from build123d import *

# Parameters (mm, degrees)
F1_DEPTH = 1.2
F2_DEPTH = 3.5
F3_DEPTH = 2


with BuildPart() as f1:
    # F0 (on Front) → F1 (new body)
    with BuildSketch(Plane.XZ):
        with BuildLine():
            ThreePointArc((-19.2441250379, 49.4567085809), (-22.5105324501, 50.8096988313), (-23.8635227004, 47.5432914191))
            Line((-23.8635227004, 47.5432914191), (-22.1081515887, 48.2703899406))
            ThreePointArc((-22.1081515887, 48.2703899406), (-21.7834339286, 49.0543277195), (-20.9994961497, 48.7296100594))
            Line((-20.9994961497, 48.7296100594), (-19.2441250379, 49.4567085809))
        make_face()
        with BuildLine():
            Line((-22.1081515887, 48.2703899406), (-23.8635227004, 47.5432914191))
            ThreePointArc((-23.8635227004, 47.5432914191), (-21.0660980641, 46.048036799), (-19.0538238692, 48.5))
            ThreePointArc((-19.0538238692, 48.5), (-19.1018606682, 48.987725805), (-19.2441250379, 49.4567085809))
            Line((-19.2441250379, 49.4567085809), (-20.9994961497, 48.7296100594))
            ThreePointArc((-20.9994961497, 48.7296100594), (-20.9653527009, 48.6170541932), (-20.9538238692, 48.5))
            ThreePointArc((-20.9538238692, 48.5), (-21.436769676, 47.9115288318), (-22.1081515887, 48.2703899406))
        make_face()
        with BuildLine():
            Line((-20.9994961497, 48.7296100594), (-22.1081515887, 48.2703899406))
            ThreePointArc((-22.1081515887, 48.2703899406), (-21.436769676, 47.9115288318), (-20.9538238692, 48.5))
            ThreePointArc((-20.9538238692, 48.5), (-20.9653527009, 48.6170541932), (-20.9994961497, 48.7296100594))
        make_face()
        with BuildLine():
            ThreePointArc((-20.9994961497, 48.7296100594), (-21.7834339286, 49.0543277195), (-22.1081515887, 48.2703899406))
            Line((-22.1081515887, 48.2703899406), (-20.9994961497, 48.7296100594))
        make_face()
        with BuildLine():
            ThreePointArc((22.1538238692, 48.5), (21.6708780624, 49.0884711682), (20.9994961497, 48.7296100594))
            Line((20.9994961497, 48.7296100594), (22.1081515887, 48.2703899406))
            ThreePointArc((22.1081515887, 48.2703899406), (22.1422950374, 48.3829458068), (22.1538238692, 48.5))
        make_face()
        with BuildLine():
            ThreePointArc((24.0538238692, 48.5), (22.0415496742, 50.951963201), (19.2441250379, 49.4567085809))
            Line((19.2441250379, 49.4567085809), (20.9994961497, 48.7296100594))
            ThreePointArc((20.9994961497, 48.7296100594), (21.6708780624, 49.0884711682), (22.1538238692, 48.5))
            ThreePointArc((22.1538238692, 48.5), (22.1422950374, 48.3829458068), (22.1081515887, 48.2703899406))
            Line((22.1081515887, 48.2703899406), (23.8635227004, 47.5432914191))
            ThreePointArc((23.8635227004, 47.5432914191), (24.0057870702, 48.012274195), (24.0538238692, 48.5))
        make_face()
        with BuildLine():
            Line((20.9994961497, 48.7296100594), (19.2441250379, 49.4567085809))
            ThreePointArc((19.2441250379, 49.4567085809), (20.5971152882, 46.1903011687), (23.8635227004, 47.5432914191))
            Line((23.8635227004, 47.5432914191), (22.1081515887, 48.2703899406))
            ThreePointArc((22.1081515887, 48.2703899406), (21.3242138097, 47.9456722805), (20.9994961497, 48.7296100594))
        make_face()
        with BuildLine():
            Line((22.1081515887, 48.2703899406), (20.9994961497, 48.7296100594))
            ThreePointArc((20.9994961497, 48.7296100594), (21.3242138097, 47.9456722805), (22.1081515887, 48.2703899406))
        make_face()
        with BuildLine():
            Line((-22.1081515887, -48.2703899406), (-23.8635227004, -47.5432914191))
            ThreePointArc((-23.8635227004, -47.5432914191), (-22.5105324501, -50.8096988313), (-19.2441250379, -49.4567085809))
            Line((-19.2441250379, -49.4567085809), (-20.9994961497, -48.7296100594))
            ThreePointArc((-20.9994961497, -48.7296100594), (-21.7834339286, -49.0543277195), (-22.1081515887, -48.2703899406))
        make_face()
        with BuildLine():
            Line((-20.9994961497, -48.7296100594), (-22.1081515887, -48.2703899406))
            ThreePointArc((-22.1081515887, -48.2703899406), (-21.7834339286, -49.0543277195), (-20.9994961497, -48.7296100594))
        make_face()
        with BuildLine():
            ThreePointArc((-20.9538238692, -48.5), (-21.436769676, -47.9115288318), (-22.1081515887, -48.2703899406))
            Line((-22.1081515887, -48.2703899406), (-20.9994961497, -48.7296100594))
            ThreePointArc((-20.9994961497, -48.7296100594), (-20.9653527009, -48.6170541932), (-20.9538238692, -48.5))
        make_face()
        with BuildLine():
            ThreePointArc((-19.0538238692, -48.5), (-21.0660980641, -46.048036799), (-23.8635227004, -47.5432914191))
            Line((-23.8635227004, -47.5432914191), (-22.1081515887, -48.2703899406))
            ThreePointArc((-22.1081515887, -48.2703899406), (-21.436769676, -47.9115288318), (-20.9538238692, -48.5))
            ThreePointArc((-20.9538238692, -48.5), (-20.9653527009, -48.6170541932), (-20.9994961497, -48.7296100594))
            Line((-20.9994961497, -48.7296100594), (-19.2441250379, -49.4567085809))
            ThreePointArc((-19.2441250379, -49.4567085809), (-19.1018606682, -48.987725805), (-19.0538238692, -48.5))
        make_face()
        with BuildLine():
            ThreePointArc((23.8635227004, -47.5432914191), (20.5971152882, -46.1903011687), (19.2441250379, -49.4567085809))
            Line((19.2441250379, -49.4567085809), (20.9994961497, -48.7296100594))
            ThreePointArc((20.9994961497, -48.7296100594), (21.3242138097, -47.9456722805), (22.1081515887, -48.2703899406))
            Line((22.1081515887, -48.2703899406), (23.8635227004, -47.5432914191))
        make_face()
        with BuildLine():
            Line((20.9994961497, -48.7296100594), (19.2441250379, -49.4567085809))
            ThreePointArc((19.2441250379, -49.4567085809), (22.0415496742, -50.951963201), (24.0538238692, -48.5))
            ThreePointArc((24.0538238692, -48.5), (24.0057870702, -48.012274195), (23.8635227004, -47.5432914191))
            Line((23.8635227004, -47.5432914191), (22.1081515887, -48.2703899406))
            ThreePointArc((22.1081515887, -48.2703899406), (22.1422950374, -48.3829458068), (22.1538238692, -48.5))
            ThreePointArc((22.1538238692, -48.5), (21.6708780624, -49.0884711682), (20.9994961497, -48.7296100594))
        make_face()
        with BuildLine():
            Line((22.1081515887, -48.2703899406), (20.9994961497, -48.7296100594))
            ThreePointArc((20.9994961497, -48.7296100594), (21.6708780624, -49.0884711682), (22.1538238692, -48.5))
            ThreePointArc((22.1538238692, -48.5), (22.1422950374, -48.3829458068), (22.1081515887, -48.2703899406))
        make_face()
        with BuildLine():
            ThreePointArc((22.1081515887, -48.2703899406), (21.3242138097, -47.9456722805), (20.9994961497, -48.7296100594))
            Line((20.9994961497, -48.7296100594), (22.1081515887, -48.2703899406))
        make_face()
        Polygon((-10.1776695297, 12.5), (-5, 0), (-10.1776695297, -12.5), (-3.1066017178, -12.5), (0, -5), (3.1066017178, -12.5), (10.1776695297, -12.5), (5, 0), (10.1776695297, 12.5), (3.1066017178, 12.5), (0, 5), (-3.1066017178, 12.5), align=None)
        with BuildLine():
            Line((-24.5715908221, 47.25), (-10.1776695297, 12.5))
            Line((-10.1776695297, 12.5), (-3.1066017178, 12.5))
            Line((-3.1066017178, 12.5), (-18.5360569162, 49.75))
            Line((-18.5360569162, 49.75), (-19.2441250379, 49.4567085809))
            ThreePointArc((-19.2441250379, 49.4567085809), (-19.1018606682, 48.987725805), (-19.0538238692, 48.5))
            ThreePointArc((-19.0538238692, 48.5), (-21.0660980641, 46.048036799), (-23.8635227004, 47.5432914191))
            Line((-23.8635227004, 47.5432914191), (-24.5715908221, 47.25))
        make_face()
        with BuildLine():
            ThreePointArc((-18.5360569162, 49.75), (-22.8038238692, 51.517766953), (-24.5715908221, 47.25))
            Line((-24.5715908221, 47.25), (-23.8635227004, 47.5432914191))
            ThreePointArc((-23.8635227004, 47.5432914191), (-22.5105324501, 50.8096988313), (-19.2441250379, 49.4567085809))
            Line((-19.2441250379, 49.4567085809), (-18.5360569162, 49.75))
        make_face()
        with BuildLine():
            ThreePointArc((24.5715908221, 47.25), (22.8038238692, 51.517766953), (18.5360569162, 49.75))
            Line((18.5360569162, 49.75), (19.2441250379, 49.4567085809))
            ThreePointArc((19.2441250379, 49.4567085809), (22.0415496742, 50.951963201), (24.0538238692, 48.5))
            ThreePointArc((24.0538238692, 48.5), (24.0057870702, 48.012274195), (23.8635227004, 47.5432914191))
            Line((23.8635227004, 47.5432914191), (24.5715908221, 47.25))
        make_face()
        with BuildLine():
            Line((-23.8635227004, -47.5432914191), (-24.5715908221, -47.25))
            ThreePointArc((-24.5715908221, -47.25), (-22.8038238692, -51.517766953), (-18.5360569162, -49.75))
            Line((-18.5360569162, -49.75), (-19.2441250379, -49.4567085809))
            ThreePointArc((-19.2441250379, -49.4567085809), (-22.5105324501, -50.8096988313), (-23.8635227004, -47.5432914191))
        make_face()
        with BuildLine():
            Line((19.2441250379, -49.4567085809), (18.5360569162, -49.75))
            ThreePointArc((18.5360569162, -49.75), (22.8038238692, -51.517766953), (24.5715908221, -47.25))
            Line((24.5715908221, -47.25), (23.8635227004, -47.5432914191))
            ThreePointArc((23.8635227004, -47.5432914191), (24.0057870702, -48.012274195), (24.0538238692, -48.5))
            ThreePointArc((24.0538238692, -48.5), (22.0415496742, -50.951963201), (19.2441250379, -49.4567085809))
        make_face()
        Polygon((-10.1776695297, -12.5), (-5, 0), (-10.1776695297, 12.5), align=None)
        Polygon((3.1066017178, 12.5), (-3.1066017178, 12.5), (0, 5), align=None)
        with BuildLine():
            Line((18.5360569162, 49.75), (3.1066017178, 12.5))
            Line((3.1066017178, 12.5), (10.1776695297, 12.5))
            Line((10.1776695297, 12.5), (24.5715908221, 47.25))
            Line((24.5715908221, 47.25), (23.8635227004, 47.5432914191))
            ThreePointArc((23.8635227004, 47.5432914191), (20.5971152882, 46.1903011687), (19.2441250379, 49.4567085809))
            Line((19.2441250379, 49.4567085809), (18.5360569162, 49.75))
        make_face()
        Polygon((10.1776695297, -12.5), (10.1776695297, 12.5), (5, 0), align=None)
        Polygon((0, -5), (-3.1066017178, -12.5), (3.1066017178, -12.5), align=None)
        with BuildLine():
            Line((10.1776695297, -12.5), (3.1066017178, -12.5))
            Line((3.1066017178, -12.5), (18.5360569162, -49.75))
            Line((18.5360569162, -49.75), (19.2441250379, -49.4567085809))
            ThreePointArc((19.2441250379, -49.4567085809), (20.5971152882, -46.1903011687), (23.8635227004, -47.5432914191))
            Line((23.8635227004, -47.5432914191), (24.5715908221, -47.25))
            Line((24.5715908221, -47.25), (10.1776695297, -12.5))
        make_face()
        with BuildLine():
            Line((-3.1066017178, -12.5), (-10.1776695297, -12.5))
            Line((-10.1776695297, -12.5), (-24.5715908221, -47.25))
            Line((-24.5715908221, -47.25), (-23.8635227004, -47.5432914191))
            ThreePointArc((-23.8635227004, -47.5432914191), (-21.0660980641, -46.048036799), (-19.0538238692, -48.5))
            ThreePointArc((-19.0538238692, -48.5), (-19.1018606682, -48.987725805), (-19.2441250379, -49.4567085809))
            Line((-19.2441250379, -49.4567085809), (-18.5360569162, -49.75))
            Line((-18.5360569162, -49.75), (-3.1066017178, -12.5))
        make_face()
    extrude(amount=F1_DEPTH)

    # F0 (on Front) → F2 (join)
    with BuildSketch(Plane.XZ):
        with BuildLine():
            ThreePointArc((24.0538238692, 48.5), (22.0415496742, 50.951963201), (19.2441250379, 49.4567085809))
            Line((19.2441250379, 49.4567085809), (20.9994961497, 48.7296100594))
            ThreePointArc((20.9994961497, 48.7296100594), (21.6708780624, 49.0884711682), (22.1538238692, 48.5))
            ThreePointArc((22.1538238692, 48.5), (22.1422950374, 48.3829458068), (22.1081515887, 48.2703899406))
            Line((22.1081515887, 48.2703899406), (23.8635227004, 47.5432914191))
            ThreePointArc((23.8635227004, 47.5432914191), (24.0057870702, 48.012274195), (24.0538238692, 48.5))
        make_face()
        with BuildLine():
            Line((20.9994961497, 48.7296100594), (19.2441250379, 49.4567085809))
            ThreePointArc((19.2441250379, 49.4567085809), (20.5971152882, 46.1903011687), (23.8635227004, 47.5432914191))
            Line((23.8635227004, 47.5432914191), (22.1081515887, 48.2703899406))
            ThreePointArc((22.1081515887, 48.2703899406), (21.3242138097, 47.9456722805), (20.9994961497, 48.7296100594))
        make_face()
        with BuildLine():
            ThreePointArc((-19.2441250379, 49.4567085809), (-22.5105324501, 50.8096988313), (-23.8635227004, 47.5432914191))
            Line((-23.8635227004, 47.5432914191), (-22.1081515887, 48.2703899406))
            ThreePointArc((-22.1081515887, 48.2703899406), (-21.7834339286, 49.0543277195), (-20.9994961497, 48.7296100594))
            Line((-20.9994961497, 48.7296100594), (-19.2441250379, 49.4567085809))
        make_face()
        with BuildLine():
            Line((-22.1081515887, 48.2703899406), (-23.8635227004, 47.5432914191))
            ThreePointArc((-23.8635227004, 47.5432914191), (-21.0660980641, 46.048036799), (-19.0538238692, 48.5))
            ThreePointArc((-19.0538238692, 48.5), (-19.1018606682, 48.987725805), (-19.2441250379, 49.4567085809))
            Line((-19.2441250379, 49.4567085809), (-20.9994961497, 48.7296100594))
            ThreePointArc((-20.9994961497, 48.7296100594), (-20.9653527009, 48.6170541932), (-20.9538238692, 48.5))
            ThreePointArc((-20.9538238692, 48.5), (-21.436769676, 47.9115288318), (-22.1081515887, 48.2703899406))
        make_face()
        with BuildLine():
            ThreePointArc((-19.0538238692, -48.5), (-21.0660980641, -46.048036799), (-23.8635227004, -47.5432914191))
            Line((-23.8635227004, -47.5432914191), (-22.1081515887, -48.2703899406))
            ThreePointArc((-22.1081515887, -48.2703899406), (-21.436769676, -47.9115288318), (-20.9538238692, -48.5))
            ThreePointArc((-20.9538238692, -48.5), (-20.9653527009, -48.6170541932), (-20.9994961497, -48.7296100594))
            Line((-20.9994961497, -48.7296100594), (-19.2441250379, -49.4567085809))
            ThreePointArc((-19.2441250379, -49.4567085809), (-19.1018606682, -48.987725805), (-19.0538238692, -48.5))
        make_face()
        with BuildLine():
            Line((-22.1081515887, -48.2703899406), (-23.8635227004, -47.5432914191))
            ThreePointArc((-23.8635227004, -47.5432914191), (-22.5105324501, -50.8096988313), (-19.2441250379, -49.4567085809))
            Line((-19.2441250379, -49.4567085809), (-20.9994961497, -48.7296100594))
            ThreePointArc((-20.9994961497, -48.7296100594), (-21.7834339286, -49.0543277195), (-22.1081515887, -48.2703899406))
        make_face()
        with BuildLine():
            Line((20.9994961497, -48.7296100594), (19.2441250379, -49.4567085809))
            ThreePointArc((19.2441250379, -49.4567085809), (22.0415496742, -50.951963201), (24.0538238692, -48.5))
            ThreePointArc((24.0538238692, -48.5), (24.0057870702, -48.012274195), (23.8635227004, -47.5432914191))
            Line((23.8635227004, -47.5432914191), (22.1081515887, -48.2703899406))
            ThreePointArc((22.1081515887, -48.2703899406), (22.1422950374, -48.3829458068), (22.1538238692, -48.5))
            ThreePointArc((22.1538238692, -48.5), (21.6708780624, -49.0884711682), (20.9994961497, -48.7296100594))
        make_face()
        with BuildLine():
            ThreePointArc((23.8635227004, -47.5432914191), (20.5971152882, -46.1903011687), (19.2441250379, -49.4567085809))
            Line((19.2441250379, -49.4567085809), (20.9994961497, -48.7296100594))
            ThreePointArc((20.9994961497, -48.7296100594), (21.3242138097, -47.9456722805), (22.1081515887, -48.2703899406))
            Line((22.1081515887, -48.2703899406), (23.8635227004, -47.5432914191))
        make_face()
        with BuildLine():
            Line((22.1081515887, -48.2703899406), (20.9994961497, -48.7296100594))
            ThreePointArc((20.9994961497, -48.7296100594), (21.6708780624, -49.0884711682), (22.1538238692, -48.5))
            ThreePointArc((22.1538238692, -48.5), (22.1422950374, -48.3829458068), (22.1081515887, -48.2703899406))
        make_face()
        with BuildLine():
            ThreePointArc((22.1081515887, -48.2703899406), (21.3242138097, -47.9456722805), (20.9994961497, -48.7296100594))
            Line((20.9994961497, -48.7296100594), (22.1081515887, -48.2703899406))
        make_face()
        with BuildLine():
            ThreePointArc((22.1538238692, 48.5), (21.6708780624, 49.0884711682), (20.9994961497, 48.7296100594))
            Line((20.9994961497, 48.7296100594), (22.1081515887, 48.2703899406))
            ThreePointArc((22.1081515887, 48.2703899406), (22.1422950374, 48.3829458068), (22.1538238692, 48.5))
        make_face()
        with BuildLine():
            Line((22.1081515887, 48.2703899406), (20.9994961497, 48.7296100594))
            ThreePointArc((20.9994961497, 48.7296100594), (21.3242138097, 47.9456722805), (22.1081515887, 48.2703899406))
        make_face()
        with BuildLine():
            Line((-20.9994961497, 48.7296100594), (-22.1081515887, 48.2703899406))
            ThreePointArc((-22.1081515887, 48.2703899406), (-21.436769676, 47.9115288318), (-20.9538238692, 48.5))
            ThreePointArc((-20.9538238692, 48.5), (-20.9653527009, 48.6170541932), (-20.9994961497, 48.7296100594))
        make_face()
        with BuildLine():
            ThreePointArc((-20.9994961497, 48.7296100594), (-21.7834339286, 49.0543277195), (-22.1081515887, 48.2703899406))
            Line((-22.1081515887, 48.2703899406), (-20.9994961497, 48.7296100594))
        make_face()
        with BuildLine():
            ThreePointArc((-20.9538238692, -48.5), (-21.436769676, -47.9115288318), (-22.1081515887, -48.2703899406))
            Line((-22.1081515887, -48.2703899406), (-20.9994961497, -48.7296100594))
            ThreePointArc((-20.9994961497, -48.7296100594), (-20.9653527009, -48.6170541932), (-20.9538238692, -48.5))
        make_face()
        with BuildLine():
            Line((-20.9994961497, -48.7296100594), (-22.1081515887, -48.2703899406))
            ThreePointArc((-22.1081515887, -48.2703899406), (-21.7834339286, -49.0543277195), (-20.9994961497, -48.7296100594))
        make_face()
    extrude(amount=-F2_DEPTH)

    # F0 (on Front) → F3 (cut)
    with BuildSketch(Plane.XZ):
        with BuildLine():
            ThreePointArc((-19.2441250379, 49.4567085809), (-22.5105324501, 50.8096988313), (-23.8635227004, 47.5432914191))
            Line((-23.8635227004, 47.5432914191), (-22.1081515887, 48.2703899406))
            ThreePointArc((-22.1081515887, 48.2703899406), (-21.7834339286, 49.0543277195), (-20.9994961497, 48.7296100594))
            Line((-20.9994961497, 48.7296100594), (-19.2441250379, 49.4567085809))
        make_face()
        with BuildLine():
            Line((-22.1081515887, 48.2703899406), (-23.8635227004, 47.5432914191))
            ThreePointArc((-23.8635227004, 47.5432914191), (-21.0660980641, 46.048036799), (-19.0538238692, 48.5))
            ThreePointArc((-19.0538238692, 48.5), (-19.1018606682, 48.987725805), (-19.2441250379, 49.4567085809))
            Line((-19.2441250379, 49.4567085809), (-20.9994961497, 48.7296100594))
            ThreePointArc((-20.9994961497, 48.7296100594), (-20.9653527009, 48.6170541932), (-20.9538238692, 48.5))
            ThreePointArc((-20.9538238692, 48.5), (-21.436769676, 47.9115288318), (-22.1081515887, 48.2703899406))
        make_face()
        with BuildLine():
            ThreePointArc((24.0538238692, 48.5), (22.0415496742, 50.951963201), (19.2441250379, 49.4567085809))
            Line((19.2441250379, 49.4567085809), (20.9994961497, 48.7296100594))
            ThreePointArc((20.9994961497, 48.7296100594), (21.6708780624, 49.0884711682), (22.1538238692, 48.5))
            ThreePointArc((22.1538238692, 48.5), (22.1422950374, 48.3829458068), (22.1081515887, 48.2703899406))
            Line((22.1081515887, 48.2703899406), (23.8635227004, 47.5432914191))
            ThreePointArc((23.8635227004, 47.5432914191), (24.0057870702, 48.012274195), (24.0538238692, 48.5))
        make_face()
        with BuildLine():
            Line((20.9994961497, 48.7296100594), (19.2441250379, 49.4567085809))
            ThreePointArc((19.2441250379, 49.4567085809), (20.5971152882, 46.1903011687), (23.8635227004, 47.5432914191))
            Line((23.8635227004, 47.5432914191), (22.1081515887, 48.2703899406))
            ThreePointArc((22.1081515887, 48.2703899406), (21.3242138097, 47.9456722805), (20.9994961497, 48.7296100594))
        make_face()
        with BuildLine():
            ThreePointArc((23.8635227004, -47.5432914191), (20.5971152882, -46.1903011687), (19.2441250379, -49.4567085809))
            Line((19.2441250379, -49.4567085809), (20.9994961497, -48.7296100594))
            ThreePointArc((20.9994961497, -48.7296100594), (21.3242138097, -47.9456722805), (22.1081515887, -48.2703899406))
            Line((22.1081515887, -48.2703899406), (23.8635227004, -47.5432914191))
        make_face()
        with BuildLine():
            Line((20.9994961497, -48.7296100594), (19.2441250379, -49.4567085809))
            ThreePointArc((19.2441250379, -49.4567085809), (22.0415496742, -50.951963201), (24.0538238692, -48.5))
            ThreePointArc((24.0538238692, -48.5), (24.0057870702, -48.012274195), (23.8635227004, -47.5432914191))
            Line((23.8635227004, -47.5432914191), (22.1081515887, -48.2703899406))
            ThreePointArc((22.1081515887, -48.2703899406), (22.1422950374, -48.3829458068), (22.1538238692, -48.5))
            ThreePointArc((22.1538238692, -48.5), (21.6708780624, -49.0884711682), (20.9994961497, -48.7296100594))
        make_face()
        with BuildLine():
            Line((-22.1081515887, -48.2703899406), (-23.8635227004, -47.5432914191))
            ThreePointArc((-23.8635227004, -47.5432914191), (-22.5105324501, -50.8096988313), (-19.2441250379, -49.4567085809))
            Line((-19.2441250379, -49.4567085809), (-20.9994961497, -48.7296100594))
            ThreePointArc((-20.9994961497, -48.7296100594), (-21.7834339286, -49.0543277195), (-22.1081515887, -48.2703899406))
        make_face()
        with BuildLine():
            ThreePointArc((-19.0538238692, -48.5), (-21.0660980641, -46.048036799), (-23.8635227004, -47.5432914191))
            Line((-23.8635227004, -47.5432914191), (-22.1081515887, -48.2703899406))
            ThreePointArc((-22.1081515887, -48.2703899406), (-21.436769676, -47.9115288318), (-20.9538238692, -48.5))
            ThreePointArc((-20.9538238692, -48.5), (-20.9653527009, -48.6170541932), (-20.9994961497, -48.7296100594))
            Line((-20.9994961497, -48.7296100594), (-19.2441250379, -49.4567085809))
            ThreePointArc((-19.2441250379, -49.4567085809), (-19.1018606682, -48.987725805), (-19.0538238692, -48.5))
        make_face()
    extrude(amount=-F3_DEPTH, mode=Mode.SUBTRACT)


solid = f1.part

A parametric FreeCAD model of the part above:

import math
import FreeCAD as App
import Part
import Sketcher

V = App.Vector
Q = App.Units.Quantity

doc = App.newDocument("Part")
params = doc.addObject("Spreadsheet::Sheet", "Params")
for row, (alias, value) in enumerate([
    ("sketch1_height", "25 mm"),
    ("pad1_length", "1.2 mm"),
    ("sketch2_radius", "2.5 mm"),
    ("pad2_length", "3.5 mm"),
    ("sketch3_radius", "2.5 mm"),
    ("sketch3_radius2", "0.6 mm"),
    ("pocket1_length", "2 mm"),
], start=1):
    params.set(f"A{row}", alias)
    params.set(f"B{row}", "=" + value)
    params.setAlias(f"B{row}", alias)

body = doc.addObject("PartDesign::Body", "Body")

sketch1 = body.newObject("Sketcher::SketchObject", "Sketch")
sketch1.AttachmentSupport = (doc.getObject("XZ_Plane"), [""])
sketch1.MapMode = "FlatFace"
sketch1.addGeometry(Part.ArcOfCircle(Part.Circle(V(-21.6, 48.5, 0), V(0, 0, 1), 3.3), math.radians(22), math.radians(202)), False)
sketch1.addGeometry(Part.LineSegment(V(-24.6, 47.2, 0), V(-10.2, 12.5, 0)), False)
sketch1.addGeometry(Part.LineSegment(V(-10.2, 12.5, 0), V(-10.2, -12.5, 0)), False)
sketch1.addGeometry(Part.LineSegment(V(-10.2, -12.5, 0), V(-24.6, -47.2, 0)), False)
sketch1.addGeometry(Part.ArcOfCircle(Part.Circle(V(-21.6, -48.5, 0), V(0, 0, 1), 3.3), math.radians(158), math.radians(338)), False)
sketch1.addGeometry(Part.LineSegment(V(-18.5, -49.8, 0), V(-3.1, -12.5, 0)), False)
sketch1.addGeometry(Part.LineSegment(V(-3.1, -12.5, 0), V(3.1, -12.5, 0)), False)
sketch1.addGeometry(Part.LineSegment(V(3.1, -12.5, 0), V(18.5, -49.8, 0)), False)
sketch1.addGeometry(Part.ArcOfCircle(Part.Circle(V(21.6, -48.5, 0), V(0, 0, 1), 3.3), math.radians(-158), math.radians(22)), False)
sketch1.addGeometry(Part.LineSegment(V(24.6, -47.2, 0), V(10.2, -12.5, 0)), False)
sketch1.addGeometry(Part.LineSegment(V(10.2, -12.5, 0), V(10.2, 12.5, 0)), False)
sketch1.addGeometry(Part.LineSegment(V(10.2, 12.5, 0), V(24.6, 47.2, 0)), False)
sketch1.addGeometry(Part.ArcOfCircle(Part.Circle(V(21.6, 48.5, 0), V(0, 0, 1), 3.3), math.radians(-22), math.radians(158)), False)
sketch1.addGeometry(Part.LineSegment(V(18.5, 49.8, 0), V(3.1, 12.5, 0)), False)
sketch1.addGeometry(Part.LineSegment(V(3.1, 12.5, 0), V(-3.1, 12.5, 0)), False)
sketch1.addGeometry(Part.LineSegment(V(-3.1, 12.5, 0), V(-18.5, 49.8, 0)), False)
sketch1.addConstraint(Sketcher.Constraint("Tangent", 0, 2, 1, 1))
sketch1.addConstraint(Sketcher.Constraint("Coincident", 1, 2, 2, 1))
sketch1.addConstraint(Sketcher.Constraint("Coincident", 2, 2, 3, 1))
sketch1.addConstraint(Sketcher.Constraint("Tangent", 3, 2, 4, 1))
sketch1.addConstraint(Sketcher.Constraint("Tangent", 4, 2, 5, 1))
sketch1.addConstraint(Sketcher.Constraint("Coincident", 5, 2, 6, 1))
sketch1.addConstraint(Sketcher.Constraint("Coincident", 6, 2, 7, 1))
sketch1.addConstraint(Sketcher.Constraint("Tangent", 7, 2, 8, 1))
sketch1.addConstraint(Sketcher.Constraint("Tangent", 8, 2, 9, 1))
sketch1.addConstraint(Sketcher.Constraint("Coincident", 9, 2, 10, 1))
sketch1.addConstraint(Sketcher.Constraint("Coincident", 10, 2, 11, 1))
sketch1.addConstraint(Sketcher.Constraint("Tangent", 11, 2, 12, 1))
sketch1.addConstraint(Sketcher.Constraint("Tangent", 12, 2, 13, 1))
sketch1.addConstraint(Sketcher.Constraint("Coincident", 13, 2, 14, 1))
sketch1.addConstraint(Sketcher.Constraint("Coincident", 14, 2, 15, 1))
sketch1.addConstraint(Sketcher.Constraint("Tangent", 15, 2, 0, 1))
sketch1.addConstraint(Sketcher.Constraint("Vertical", 2))
sketch1.addConstraint(Sketcher.Constraint("Horizontal", 6))
sketch1.addConstraint(Sketcher.Constraint("Vertical", 10))
sketch1.addConstraint(Sketcher.Constraint("Horizontal", 14))
sketch1.addConstraint(Sketcher.Constraint("Equal", 0, 4))
sketch1.addConstraint(Sketcher.Constraint("Equal", 4, 8))
sketch1.addConstraint(Sketcher.Constraint("Equal", 8, 12))
sketch1.addConstraint(Sketcher.Constraint("Symmetric", 0, 3, 8, 3, -1, 1))
sketch1.addConstraint(Sketcher.Constraint("Symmetric", 4, 3, 12, 3, -1, 1))
sketch1.addConstraint(Sketcher.Constraint("Symmetric", 1, 2, 9, 2, -1, 1))
sketch1.addConstraint(Sketcher.Constraint("Symmetric", 5, 2, 13, 2, -1, 1))
sketch1.addConstraint(Sketcher.Constraint("Symmetric", 4, 3, 8, 3, -2))
sketch1.addConstraint(Sketcher.Constraint("Parallel", 3, 5))
sketch1.addConstraint(Sketcher.Constraint("Parallel", 1, 7))
sketch1.addConstraint(Sketcher.Constraint("Parallel", 5, 11))
sketch1.addConstraint(Sketcher.Constraint("Parallel", 9, 15))
sketch1.addConstraint(Sketcher.Constraint("Horizontal", 2, 2, 5, 2))
sketch1.addConstraint(Sketcher.Constraint("Horizontal", 4, 2, 7, 2))
sketch1.addConstraint(Sketcher.Constraint("DistanceY", 2, 2, 2, 1, 25.0))
sketch1.addConstraint(Sketcher.Constraint("Angle", 1, Q("-67.5 deg")))
sketch1.addConstraint(Sketcher.Constraint("DistanceY", 4, 3, 0, 3, 97.0))
sketch1.addConstraint(Sketcher.Constraint("DistanceY", 3, 2, 0, 2, 94.5))
sketch1.addConstraint(Sketcher.Constraint("DistanceX", 5, 2, -1, 1, 3.106602))
sketch1.setExpression("Constraints[34]", "Params.sketch1_height")
pad1 = body.newObject("PartDesign::Pad", "Pad")
pad1.Profile = sketch1
pad1.setExpression("Length", "Params.pad1_length")

sketch2 = body.newObject("Sketcher::SketchObject", "Sketch001")
sketch2.AttachmentSupport = (doc.getObject("XZ_Plane"), [""])
sketch2.MapMode = "FlatFace"
sketch2.addGeometry(Part.ArcOfCircle(Part.Circle(V(21.6, 48.5, 0), V(0, 0, 1), 2.5), math.radians(0), math.radians(157)), False)
sketch2.addGeometry(Part.ArcOfCircle(Part.Circle(V(21.6, 48.5, 0), V(0, 0, 1), 2.5), math.radians(157), math.radians(337)), False)
sketch2.addGeometry(Part.ArcOfCircle(Part.Circle(V(21.6, 48.5, 0), V(0, 0, 1), 2.5), math.radians(-23), math.radians(0)), False)
sketch2.addGeometry(Part.ArcOfCircle(Part.Circle(V(-21.6, 48.5, 0), V(0, 0, 1), 2.5), math.radians(23), math.radians(203)), False)
sketch2.addGeometry(Part.ArcOfCircle(Part.Circle(V(-21.6, 48.5, 0), V(0, 0, 1), 2.5), math.radians(-157), math.radians(0)), False)
sketch2.addGeometry(Part.ArcOfCircle(Part.Circle(V(-21.6, 48.5, 0), V(0, 0, 1), 2.5), math.radians(0), math.radians(22)), False)
sketch2.addGeometry(Part.ArcOfCircle(Part.Circle(V(-21.6, -48.5, 0), V(0, 0, 1), 2.5), math.radians(0), math.radians(157)), False)
sketch2.addGeometry(Part.ArcOfCircle(Part.Circle(V(-21.6, -48.5, 0), V(0, 0, 1), 2.5), math.radians(157), math.radians(337)), False)
sketch2.addGeometry(Part.ArcOfCircle(Part.Circle(V(-21.6, -48.5, 0), V(0, 0, 1), 2.5), math.radians(-22), math.radians(0)), False)
sketch2.addGeometry(Part.ArcOfCircle(Part.Circle(V(21.6, -48.5, 0), V(0, 0, 1), 2.5), math.radians(-157), math.radians(0)), False)
sketch2.addGeometry(Part.ArcOfCircle(Part.Circle(V(21.6, -48.5, 0), V(0, 0, 1), 2.5), math.radians(0), math.radians(23)), False)
sketch2.addGeometry(Part.ArcOfCircle(Part.Circle(V(21.6, -48.5, 0), V(0, 0, 1), 2.5), math.radians(23), math.radians(203)), False)
sketch2.addConstraint(Sketcher.Constraint("Tangent", 0, 2, 1, 1))
sketch2.addConstraint(Sketcher.Constraint("Tangent", 1, 2, 2, 1))
sketch2.addConstraint(Sketcher.Constraint("Tangent", 2, 2, 0, 1))
sketch2.addConstraint(Sketcher.Constraint("Tangent", 3, 2, 4, 1))
sketch2.addConstraint(Sketcher.Constraint("Tangent", 4, 2, 5, 1))
sketch2.addConstraint(Sketcher.Constraint("Tangent", 5, 2, 3, 1))
sketch2.addConstraint(Sketcher.Constraint("Tangent", 6, 2, 7, 1))
sketch2.addConstraint(Sketcher.Constraint("Tangent", 7, 2, 8, 1))
sketch2.addConstraint(Sketcher.Constraint("Tangent", 8, 2, 6, 1))
sketch2.addConstraint(Sketcher.Constraint("Tangent", 9, 2, 10, 1))
sketch2.addConstraint(Sketcher.Constraint("Tangent", 10, 2, 11, 1))
sketch2.addConstraint(Sketcher.Constraint("Tangent", 11, 2, 9, 1))
sketch2.addConstraint(Sketcher.Constraint("Equal", 2, 3))
sketch2.addConstraint(Sketcher.Constraint("Equal", 5, 6))
sketch2.addConstraint(Sketcher.Constraint("Equal", 8, 9))
sketch2.addConstraint(Sketcher.Constraint("Symmetric", 0, 3, 6, 3, -1, 1))
sketch2.addConstraint(Sketcher.Constraint("Symmetric", 3, 3, 9, 3, -1, 1))
sketch2.addConstraint(Sketcher.Constraint("Symmetric", 0, 3, 3, 3, -2))
sketch2.addConstraint(Sketcher.Constraint("Horizontal", 5, 3, 2, 2))
sketch2.addConstraint(Sketcher.Constraint("Horizontal", 1, 2, 3, 2))
sketch2.addConstraint(Sketcher.Constraint("Horizontal", 2, 2, 4, 2))
sketch2.addConstraint(Sketcher.Constraint("Horizontal", 0, 2, 5, 2))
sketch2.addConstraint(Sketcher.Constraint("Horizontal", 11, 3, 8, 2))
sketch2.addConstraint(Sketcher.Constraint("Horizontal", 8, 2, 9, 2))
sketch2.addConstraint(Sketcher.Constraint("Horizontal", 6, 2, 10, 2))
sketch2.addConstraint(Sketcher.Constraint("Horizontal", 7, 2, 11, 2))
sketch2.addConstraint(Sketcher.Constraint("Vertical", 3, 2, 6, 2))
sketch2.addConstraint(Sketcher.Constraint("Vertical", 5, 2, 7, 2))
sketch2.addConstraint(Sketcher.Constraint("Radius", 0, 2.5))
sketch2.addConstraint(Sketcher.Constraint("DistanceY", 6, 3, 3, 3, 97.0))
sketch2.addConstraint(Sketcher.Constraint("DistanceX", 0, 2, 0, 3, 2.309699))
sketch2.addConstraint(Sketcher.Constraint("DistanceX", 2, 3, 1, 2, 2.309699))
sketch2.addConstraint(Sketcher.Constraint("DistanceX", 3, 3, 0, 2, 40.797949))
sketch2.setExpression("Constraints[28]", "Params.sketch2_radius")
pad2 = body.newObject("PartDesign::Pad", "Pad001")
pad2.Profile = sketch2
pad2.setExpression("Length", "Params.pad2_length")
pad2.Reversed = True

sketch3 = body.newObject("Sketcher::SketchObject", "Sketch002")
sketch3.AttachmentSupport = (doc.getObject("XZ_Plane"), [""])
sketch3.MapMode = "FlatFace"
sketch3.addGeometry(Part.ArcOfCircle(Part.Circle(V(-21.55, 48.5, 0), V(0, 0, 1), 2.5), math.radians(23), math.radians(203)), False)
sketch3.addGeometry(Part.ArcOfCircle(Part.Circle(V(-21.55, 48.5, 0), V(0, 0, 1), 2.5), math.radians(-157), math.radians(0)), False)
sketch3.addGeometry(Part.ArcOfCircle(Part.Circle(V(-21.55, 48.5, 0), V(0, 0, 1), 2.5), math.radians(0), math.radians(22)), False)
sketch3.addGeometry(Part.ArcOfCircle(Part.Circle(V(-21.55, 48.5, 0), V(0, 0, 1), 0.6), math.radians(22), math.radians(202)), False)
sketch3.addGeometry(Part.ArcOfCircle(Part.Circle(V(-21.55, 48.5, 0), V(0, 0, 1), 0.6), math.radians(0), math.radians(23)), False)
sketch3.addGeometry(Part.ArcOfCircle(Part.Circle(V(-21.55, 48.5, 0), V(0, 0, 1), 0.6), math.radians(-158), math.radians(0)), False)
sketch3.addGeometry(Part.ArcOfCircle(Part.Circle(V(21.55, 48.5, 0), V(0, 0, 1), 2.5), math.radians(0), math.radians(157)), False)
sketch3.addGeometry(Part.ArcOfCircle(Part.Circle(V(21.55, 48.5, 0), V(0, 0, 1), 2.5), math.radians(157), math.radians(337)), False)
sketch3.addGeometry(Part.ArcOfCircle(Part.Circle(V(21.55, 48.5, 0), V(0, 0, 1), 2.5), math.radians(-23), math.radians(0)), False)
sketch3.addGeometry(Part.ArcOfCircle(Part.Circle(V(21.55, 48.5, 0), V(0, 0, 1), 0.6), math.radians(0), math.radians(158)), False)
sketch3.addGeometry(Part.ArcOfCircle(Part.Circle(V(21.55, 48.5, 0), V(0, 0, 1), 0.6), math.radians(-22), math.radians(0)), False)
sketch3.addGeometry(Part.ArcOfCircle(Part.Circle(V(21.55, 48.5, 0), V(0, 0, 1), 0.6), math.radians(158), math.radians(338)), False)
sketch3.addGeometry(Part.ArcOfCircle(Part.Circle(V(21.55, -48.5, 0), V(0, 0, 1), 2.5), math.radians(23), math.radians(203)), False)
sketch3.addGeometry(Part.ArcOfCircle(Part.Circle(V(21.55, -48.5, 0), V(0, 0, 1), 2.5), math.radians(-157), math.radians(0)), False)
sketch3.addGeometry(Part.ArcOfCircle(Part.Circle(V(21.55, -48.5, 0), V(0, 0, 1), 2.5), math.radians(0), math.radians(23)), False)
sketch3.addGeometry(Part.ArcOfCircle(Part.Circle(V(21.55, -48.5, 0), V(0, 0, 1), 0.6), math.radians(22), math.radians(202)), False)
sketch3.addGeometry(Part.ArcOfCircle(Part.Circle(V(21.55, -48.5, 0), V(0, 0, 1), 0.6), math.radians(0), math.radians(22)), False)
sketch3.addGeometry(Part.ArcOfCircle(Part.Circle(V(21.55, -48.5, 0), V(0, 0, 1), 0.6), math.radians(-158), math.radians(0)), False)
sketch3.addGeometry(Part.ArcOfCircle(Part.Circle(V(-21.55, -48.5, 0), V(0, 0, 1), 2.5), math.radians(157), math.radians(337)), False)
sketch3.addGeometry(Part.ArcOfCircle(Part.Circle(V(-21.55, -48.5, 0), V(0, 0, 1), 2.5), math.radians(-22), math.radians(0)), False)
sketch3.addGeometry(Part.ArcOfCircle(Part.Circle(V(-21.55, -48.5, 0), V(0, 0, 1), 2.5), math.radians(0), math.radians(157)), False)
sketch3.addGeometry(Part.ArcOfCircle(Part.Circle(V(-21.55, -48.5, 0), V(0, 0, 1), 0.6), math.radians(158), math.radians(338)), False)
sketch3.addGeometry(Part.ArcOfCircle(Part.Circle(V(-21.55, -48.5, 0), V(0, 0, 1), 0.6), math.radians(0), math.radians(158)), False)
sketch3.addGeometry(Part.ArcOfCircle(Part.Circle(V(-21.55, -48.5, 0), V(0, 0, 1), 0.6), math.radians(-23), math.radians(0)), False)
sketch3.addConstraint(Sketcher.Constraint("Tangent", 0, 2, 1, 1))
sketch3.addConstraint(Sketcher.Constraint("Tangent", 1, 2, 2, 1))
sketch3.addConstraint(Sketcher.Constraint("Tangent", 2, 2, 0, 1))
sketch3.addConstraint(Sketcher.Constraint("Tangent", 3, 1, 4, 2))
sketch3.addConstraint(Sketcher.Constraint("Tangent", 4, 1, 5, 2))
sketch3.addConstraint(Sketcher.Constraint("Tangent", 5, 1, 3, 2))
sketch3.addConstraint(Sketcher.Constraint("Tangent", 6, 2, 7, 1))
sketch3.addConstraint(Sketcher.Constraint("Tangent", 7, 2, 8, 1))
sketch3.addConstraint(Sketcher.Constraint("Tangent", 8, 2, 6, 1))
sketch3.addConstraint(Sketcher.Constraint("Tangent", 9, 1, 10, 2))
sketch3.addConstraint(Sketcher.Constraint("Tangent", 10, 1, 11, 2))
sketch3.addConstraint(Sketcher.Constraint("Tangent", 11, 1, 9, 2))
sketch3.addConstraint(Sketcher.Constraint("Tangent", 12, 2, 13, 1))
sketch3.addConstraint(Sketcher.Constraint("Tangent", 13, 2, 14, 1))
sketch3.addConstraint(Sketcher.Constraint("Tangent", 14, 2, 12, 1))
sketch3.addConstraint(Sketcher.Constraint("Tangent", 15, 1, 16, 2))
sketch3.addConstraint(Sketcher.Constraint("Tangent", 16, 1, 17, 2))
sketch3.addConstraint(Sketcher.Constraint("Tangent", 17, 1, 15, 2))
sketch3.addConstraint(Sketcher.Constraint("Tangent", 18, 2, 19, 1))
sketch3.addConstraint(Sketcher.Constraint("Tangent", 19, 2, 20, 1))
sketch3.addConstraint(Sketcher.Constraint("Tangent", 20, 2, 18, 1))
sketch3.addConstraint(Sketcher.Constraint("Tangent", 21, 1, 22, 2))
sketch3.addConstraint(Sketcher.Constraint("Tangent", 22, 1, 23, 2))
sketch3.addConstraint(Sketcher.Constraint("Tangent", 23, 1, 21, 2))
sketch3.addConstraint(Sketcher.Constraint("Coincident", 3, 3, 0, 3))
sketch3.addConstraint(Sketcher.Constraint("Coincident", 9, 3, 6, 3))
sketch3.addConstraint(Sketcher.Constraint("Coincident", 15, 3, 12, 3))
sketch3.addConstraint(Sketcher.Constraint("Coincident", 21, 3, 18, 3))
sketch3.addConstraint(Sketcher.Constraint("Equal", 2, 6))
sketch3.addConstraint(Sketcher.Constraint("Equal", 5, 9))
sketch3.addConstraint(Sketcher.Constraint("Equal", 8, 12))
sketch3.addConstraint(Sketcher.Constraint("Equal", 11, 15))
sketch3.addConstraint(Sketcher.Constraint("Equal", 14, 18))
sketch3.addConstraint(Sketcher.Constraint("Equal", 17, 21))
sketch3.addConstraint(Sketcher.Constraint("Symmetric", 0, 3, 12, 3, -1, 1))
sketch3.addConstraint(Sketcher.Constraint("Symmetric", 6, 3, 18, 3, -1, 1))
sketch3.addConstraint(Sketcher.Constraint("Symmetric", 0, 3, 6, 3, -2))
sketch3.addConstraint(Sketcher.Constraint("Horizontal", 11, 3, 1, 2))
sketch3.addConstraint(Sketcher.Constraint("Horizontal", 1, 2, 4, 1))
sketch3.addConstraint(Sketcher.Constraint("Horizontal", 2, 2, 6, 2))
sketch3.addConstraint(Sketcher.Constraint("Horizontal", 0, 2, 7, 2))
sketch3.addConstraint(Sketcher.Constraint("Horizontal", 4, 1, 8, 2))
sketch3.addConstraint(Sketcher.Constraint("Horizontal", 8, 2, 9, 1))
sketch3.addConstraint(Sketcher.Constraint("Horizontal", 5, 1, 10, 1))
sketch3.addConstraint(Sketcher.Constraint("Horizontal", 3, 1, 11, 1))
sketch3.addConstraint(Sketcher.Constraint("Horizontal", 23, 3, 13, 2))
sketch3.addConstraint(Sketcher.Constraint("Horizontal", 13, 2, 16, 1))
sketch3.addConstraint(Sketcher.Constraint("Horizontal", 12, 2, 18, 2))
sketch3.addConstraint(Sketcher.Constraint("Horizontal", 16, 1, 19, 2))
sketch3.addConstraint(Sketcher.Constraint("Horizontal", 14, 2, 20, 2))
sketch3.addConstraint(Sketcher.Constraint("Horizontal", 15, 1, 21, 1))
sketch3.addConstraint(Sketcher.Constraint("Horizontal", 19, 2, 22, 1))
sketch3.addConstraint(Sketcher.Constraint("Horizontal", 17, 1, 23, 1))
sketch3.addConstraint(Sketcher.Constraint("Vertical", 6, 2, 12, 2))
sketch3.addConstraint(Sketcher.Constraint("Vertical", 7, 2, 14, 2))
sketch3.addConstraint(Sketcher.Constraint("Vertical", 10, 1, 15, 1))
sketch3.addConstraint(Sketcher.Constraint("Vertical", 11, 1, 17, 1))
sketch3.addConstraint(Sketcher.Constraint("Radius", 0, 2.5))
sketch3.addConstraint(Sketcher.Constraint("Radius", 3, 0.6))
sketch3.addConstraint(Sketcher.Constraint("DistanceY", 12, 3, 6, 3, 97.0))
sketch3.addConstraint(Sketcher.Constraint("DistanceX", 0, 2, 2, 3, 2.309699))
sketch3.addConstraint(Sketcher.Constraint("DistanceX", 2, 2, 1, 2, 0.190301))
sketch3.addConstraint(Sketcher.Constraint("DistanceY", -1, 1, 3, 1, 48.72961))
sketch3.addConstraint(Sketcher.Constraint("DistanceX", 5, 1, -1, 1, 22.108152))
sketch3.addConstraint(Sketcher.Constraint("DistanceY", -1, 1, 5, 1, 48.27039))
sketch3.setExpression("Constraints[57]", "Params.sketch3_radius")
sketch3.setExpression("Constraints[58]", "Params.sketch3_radius2")
pocket1 = body.newObject("PartDesign::Pocket", "Pocket")
pocket1.Profile = sketch3
pocket1.setExpression("Length", "Params.pocket1_length")

doc.recompute()
